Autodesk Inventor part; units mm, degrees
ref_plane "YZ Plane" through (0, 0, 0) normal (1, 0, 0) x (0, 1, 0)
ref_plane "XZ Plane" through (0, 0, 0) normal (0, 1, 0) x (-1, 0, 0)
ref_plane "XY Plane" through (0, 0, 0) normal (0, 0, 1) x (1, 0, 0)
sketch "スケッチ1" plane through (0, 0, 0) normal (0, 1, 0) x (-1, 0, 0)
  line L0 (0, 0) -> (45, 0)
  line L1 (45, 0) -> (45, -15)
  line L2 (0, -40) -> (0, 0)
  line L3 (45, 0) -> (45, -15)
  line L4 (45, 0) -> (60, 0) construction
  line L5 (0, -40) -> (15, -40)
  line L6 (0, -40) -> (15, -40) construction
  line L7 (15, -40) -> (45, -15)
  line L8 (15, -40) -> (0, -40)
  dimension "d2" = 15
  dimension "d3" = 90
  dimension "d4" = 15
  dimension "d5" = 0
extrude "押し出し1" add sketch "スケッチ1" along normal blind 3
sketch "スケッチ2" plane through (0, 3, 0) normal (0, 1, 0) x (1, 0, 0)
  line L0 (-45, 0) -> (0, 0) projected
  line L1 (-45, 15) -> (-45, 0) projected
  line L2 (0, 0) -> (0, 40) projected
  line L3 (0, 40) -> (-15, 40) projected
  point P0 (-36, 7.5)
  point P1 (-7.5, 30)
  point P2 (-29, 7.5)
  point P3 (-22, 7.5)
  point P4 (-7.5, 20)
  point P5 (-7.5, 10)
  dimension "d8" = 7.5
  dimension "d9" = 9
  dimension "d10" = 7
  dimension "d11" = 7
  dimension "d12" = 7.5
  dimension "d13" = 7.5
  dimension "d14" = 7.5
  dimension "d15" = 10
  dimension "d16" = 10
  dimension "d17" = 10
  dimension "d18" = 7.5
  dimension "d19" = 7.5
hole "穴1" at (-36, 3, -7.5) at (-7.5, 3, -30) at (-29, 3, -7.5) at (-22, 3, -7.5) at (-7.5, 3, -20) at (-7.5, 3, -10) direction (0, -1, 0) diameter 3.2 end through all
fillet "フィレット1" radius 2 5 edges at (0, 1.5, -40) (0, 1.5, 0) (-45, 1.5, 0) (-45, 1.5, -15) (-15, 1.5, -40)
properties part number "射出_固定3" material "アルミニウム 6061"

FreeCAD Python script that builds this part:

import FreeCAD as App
import Part
import Sketcher

V = App.Vector
Q = App.Units.Quantity


def edges_at(feature, points):
    """Names of the edges that pass closest to the given points."""
    edges = feature.Shape.Edges
    near = lambda p: min(range(len(edges)), key=lambda i: edges[i].distToShape(Part.Vertex(*p))[0])
    return sorted({f"Edge{near(p) + 1}" for p in points})

doc = App.newDocument("Part")
body = doc.addObject("PartDesign::Body", "Body")

sketch1 = body.newObject("Sketcher::SketchObject", "Sketch")
sketch1.AttachmentSupport = (doc.getObject("XZ_Plane"), [""])
sketch1.MapMode = "FlatFace"
sketch1.addGeometry(Part.LineSegment(V(-45, 0, 0), V(0, 0, 0)), False)
sketch1.addGeometry(Part.LineSegment(V(0, 0, 0), V(0, -40, 0)), False)
sketch1.addGeometry(Part.LineSegment(V(0, -40, 0), V(-15, -40, 0)), False)
sketch1.addGeometry(Part.LineSegment(V(-15, -40, 0), V(-45, -15, 0)), False)
sketch1.addGeometry(Part.LineSegment(V(-45, -15, 0), V(-45, 0, 0)), False)
sketch1.addConstraint(Sketcher.Constraint("Coincident", 0, 2, 1, 1))
sketch1.addConstraint(Sketcher.Constraint("Coincident", 1, 2, 2, 1))
sketch1.addConstraint(Sketcher.Constraint("Coincident", 2, 2, 3, 1))
sketch1.addConstraint(Sketcher.Constraint("Coincident", 3, 2, 4, 1))
sketch1.addConstraint(Sketcher.Constraint("Coincident", 4, 2, 0, 1))
sketch1.addConstraint(Sketcher.Constraint("Horizontal", 0))
sketch1.addConstraint(Sketcher.Constraint("Vertical", 1))
sketch1.addConstraint(Sketcher.Constraint("Horizontal", 2))
sketch1.addConstraint(Sketcher.Constraint("Vertical", 4))
sketch1.addConstraint(Sketcher.Constraint("Coincident", 0, 2, -1, 1))
sketch1.addConstraint(Sketcher.Constraint("Equal", 2, 4))
sketch1.addConstraint(Sketcher.Constraint("DistanceX", 2, 2, 2, 1, Q("15 mm")))
sketch1.addConstraint(Sketcher.Constraint("DistanceX", 0, 1, 0, 2, Q("45 mm")))
sketch1.addConstraint(Sketcher.Constraint("DistanceY", 1, 2, 1, 1, Q("40 mm")))
pad1 = body.newObject("PartDesign::Pad", "Pad")
pad1.Profile = sketch1
pad1.Length = 3
pad1.Reversed = True

sketch2 = body.newObject("Sketcher::SketchObject", "Sketch001")
sketch2.AttachmentSupport = (doc.getObject("XZ_Plane"), [""])
sketch2.MapMode = "FlatFace"
sketch2.AttachmentOffset = App.Placement(V(0, 0, -3), App.Rotation())
sketch2.addGeometry(Part.Circle(V(-36, -7.5, 0), V(0, 0, 1), 1.6), False)
sketch2.addGeometry(Part.Circle(V(-7.5, -30, 0), V(0, 0, 1), 1.6), False)
sketch2.addGeometry(Part.Circle(V(-29, -7.5, 0), V(0, 0, 1), 1.6), False)
sketch2.addGeometry(Part.Circle(V(-22, -7.5, 0), V(0, 0, 1), 1.6), False)
sketch2.addGeometry(Part.Circle(V(-7.5, -20, 0), V(0, 0, 1), 1.6), False)
sketch2.addGeometry(Part.Circle(V(-7.5, -10, 0), V(0, 0, 1), 1.6), False)
sketch2.addConstraint(Sketcher.Constraint("Equal", 0, 1))
sketch2.addConstraint(Sketcher.Constraint("Equal", 1, 2))
sketch2.addConstraint(Sketcher.Constraint("Equal", 2, 3))
sketch2.addConstraint(Sketcher.Constraint("Equal", 3, 4))
sketch2.addConstraint(Sketcher.Constraint("Equal", 4, 5))
sketch2.addConstraint(Sketcher.Constraint("Horizontal", 0, 3, 2, 3))
sketch2.addConstraint(Sketcher.Constraint("Horizontal", 2, 3, 3, 3))
sketch2.addConstraint(Sketcher.Constraint("Vertical", 1, 3, 4, 3))
sketch2.addConstraint(Sketcher.Constraint("Vertical", 4, 3, 5, 3))
sketch2.addConstraint(Sketcher.Constraint("Diameter", 0, Q("3.2 mm")))
sketch2.addConstraint(Sketcher.Constraint("DistanceX", 0, 3, -1, 1, Q("36 mm")))
sketch2.addConstraint(Sketcher.Constraint("DistanceY", 1, 3, -1, 1, Q("30 mm")))
sketch2.addConstraint(Sketcher.Constraint("DistanceX", 2, 3, -1, 1, Q("29 mm")))
sketch2.addConstraint(Sketcher.Constraint("DistanceX", 3, 3, -1, 1, Q("22 mm")))
sketch2.addConstraint(Sketcher.Constraint("DistanceY", 4, 3, -1, 1, Q("20 mm")))
sketch2.addConstraint(Sketcher.Constraint("DistanceY", 5, 3, -1, 1, Q("10 mm")))
sketch2.addConstraint(Sketcher.Constraint("DistanceY", 0, 3, -1, 1, Q("7.5 mm")))
sketch2.addConstraint(Sketcher.Constraint("DistanceX", 1, 3, -1, 1, Q("7.5 mm")))
doc.recompute()
hole = body.newObject("PartDesign::Hole", "Hole")
hole.Profile = sketch2
hole.ThreadType = "None"
hole.Diameter = 3.2
hole.DepthType = "ThroughAll"
hole.Reversed = True
doc.recompute()

fillet = body.newObject("PartDesign::Fillet", "Fillet")
fillet.Base = (hole, edges_at(hole, [
    (0, 1.5, -40),
    (0, 1.5, 0),
    (-45, 1.5, 0),
    (-45, 1.5, -15),
    (-15, 1.5, -40),
]))
fillet.Radius = 2

doc.recompute()
